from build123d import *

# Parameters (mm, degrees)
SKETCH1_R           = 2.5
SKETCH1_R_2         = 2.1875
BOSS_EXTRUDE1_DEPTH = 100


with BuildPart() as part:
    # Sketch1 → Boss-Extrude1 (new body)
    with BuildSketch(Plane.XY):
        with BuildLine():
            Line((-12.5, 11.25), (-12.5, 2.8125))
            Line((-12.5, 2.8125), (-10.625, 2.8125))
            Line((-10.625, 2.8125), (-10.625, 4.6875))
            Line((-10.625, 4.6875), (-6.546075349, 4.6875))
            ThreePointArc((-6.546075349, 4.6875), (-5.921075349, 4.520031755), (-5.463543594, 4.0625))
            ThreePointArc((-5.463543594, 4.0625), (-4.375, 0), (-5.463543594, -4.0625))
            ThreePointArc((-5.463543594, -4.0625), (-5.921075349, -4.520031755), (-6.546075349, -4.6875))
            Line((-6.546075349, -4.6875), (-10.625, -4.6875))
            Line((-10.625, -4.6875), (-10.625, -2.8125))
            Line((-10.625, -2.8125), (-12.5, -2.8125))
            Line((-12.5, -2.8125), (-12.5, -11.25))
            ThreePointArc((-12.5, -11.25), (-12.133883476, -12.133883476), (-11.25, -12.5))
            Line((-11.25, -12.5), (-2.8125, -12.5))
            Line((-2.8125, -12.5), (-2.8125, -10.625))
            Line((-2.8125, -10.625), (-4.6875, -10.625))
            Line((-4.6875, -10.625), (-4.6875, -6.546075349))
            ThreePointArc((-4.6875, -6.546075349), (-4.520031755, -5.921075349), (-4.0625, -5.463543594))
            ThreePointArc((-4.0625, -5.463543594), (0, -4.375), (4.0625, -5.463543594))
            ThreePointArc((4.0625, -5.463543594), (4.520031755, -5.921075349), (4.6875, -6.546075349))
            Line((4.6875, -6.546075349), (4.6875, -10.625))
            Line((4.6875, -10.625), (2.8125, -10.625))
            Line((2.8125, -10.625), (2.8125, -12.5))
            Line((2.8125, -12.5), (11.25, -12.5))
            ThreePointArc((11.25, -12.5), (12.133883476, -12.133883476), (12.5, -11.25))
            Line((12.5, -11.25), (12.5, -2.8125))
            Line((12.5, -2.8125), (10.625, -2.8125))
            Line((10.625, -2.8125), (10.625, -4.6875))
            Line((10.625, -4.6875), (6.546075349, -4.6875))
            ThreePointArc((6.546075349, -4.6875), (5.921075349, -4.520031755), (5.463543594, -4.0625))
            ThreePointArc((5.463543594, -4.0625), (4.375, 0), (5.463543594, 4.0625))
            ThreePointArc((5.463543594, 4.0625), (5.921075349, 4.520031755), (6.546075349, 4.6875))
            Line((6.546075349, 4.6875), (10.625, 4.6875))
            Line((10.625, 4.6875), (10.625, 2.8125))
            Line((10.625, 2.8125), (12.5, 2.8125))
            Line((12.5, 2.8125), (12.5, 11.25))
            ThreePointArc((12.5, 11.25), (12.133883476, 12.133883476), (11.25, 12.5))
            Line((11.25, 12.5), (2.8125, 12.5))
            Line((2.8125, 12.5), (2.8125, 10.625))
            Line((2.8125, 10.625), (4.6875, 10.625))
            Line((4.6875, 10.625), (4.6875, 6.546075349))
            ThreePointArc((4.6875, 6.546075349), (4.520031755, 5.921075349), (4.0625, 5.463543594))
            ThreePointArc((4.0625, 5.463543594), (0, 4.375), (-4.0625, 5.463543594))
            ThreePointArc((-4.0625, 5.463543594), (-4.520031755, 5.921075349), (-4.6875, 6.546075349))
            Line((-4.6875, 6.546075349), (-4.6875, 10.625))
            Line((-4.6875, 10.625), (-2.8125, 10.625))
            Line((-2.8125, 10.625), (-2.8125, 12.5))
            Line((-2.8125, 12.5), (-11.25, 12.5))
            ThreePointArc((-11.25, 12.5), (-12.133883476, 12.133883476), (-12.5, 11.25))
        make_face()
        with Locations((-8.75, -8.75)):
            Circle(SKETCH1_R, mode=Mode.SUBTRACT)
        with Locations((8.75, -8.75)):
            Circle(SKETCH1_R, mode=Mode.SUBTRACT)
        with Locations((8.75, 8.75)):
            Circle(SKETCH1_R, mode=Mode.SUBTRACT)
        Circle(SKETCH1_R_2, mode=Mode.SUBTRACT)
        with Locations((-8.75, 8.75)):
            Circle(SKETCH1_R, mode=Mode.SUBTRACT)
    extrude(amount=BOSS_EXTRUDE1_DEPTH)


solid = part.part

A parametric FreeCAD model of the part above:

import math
import FreeCAD as App
import Part
import Sketcher

doc = App.newDocument("Part")
body = doc.addObject("PartDesign::Body", "Body")

sketch1 = body.newObject("Sketcher::SketchObject", "Sketch")
sketch1.AttachmentSupport = (doc.getObject("XY_Plane"), [""])
sketch1.MapMode = "FlatFace"
sketch1.addGeometry([
    Part.LineSegment(App.Vector(-12.5, 11.2, 0), App.Vector(-12.5, 2.8, 0)),
    Part.LineSegment(App.Vector(-12.5, 2.8, 0), App.Vector(-10.6, 2.8, 0)),
    Part.LineSegment(App.Vector(-10.6, 2.8, 0), App.Vector(-10.6, 4.7, 0)),
    Part.LineSegment(App.Vector(-10.6, 4.7, 0), App.Vector(-6.5, 4.7, 0)),
    Part.ArcOfCircle(Part.Circle(App.Vector(-6.5, 3.4, 0), App.Vector(0, 0, 1), 1.2), math.radians(30), math.radians(90)),
    Part.ArcOfCircle(Part.Circle(App.Vector(-12.5, 0, 0), App.Vector(0, 0, 1), 8.1), math.radians(-30), math.radians(30)),
    Part.ArcOfCircle(Part.Circle(App.Vector(-6.5, -3.4, 0), App.Vector(0, 0, 1), 1.2), math.radians(-90), math.radians(-30)),
    Part.LineSegment(App.Vector(-6.5, -4.7, 0), App.Vector(-10.6, -4.7, 0)),
    Part.LineSegment(App.Vector(-10.6, -4.7, 0), App.Vector(-10.6, -2.8, 0)),
    Part.LineSegment(App.Vector(-10.6, -2.8, 0), App.Vector(-12.5, -2.8, 0)),
    Part.LineSegment(App.Vector(-12.5, -2.8, 0), App.Vector(-12.5, -11.2, 0)),
    Part.ArcOfCircle(Part.Circle(App.Vector(-11.2, -11.2, 0), App.Vector(0, 0, 1), 1.3), math.radians(-180), math.radians(-90)),
    Part.LineSegment(App.Vector(-11.2, -12.5, 0), App.Vector(-2.8, -12.5, 0)),
    Part.LineSegment(App.Vector(-2.8, -12.5, 0), App.Vector(-2.8, -10.6, 0)),
    Part.LineSegment(App.Vector(-2.8, -10.6, 0), App.Vector(-4.7, -10.6, 0)),
    Part.LineSegment(App.Vector(-4.7, -10.6, 0), App.Vector(-4.7, -6.5, 0)),
    Part.ArcOfCircle(Part.Circle(App.Vector(-3.4, -6.5, 0), App.Vector(0, 0, 1), 1.2), math.radians(120), math.radians(180)),
    Part.ArcOfCircle(Part.Circle(App.Vector(0, -12.5, 0), App.Vector(0, 0, 1), 8.1), math.radians(60), math.radians(120)),
    Part.ArcOfCircle(Part.Circle(App.Vector(3.4, -6.5, 0), App.Vector(0, 0, 1), 1.2), math.radians(0), math.radians(60)),
    Part.LineSegment(App.Vector(4.7, -6.5, 0), App.Vector(4.7, -10.6, 0)),
    Part.LineSegment(App.Vector(4.7, -10.6, 0), App.Vector(2.8, -10.6, 0)),
    Part.LineSegment(App.Vector(2.8, -10.6, 0), App.Vector(2.8, -12.5, 0)),
    Part.LineSegment(App.Vector(2.8, -12.5, 0), App.Vector(11.2, -12.5, 0)),
    Part.ArcOfCircle(Part.Circle(App.Vector(11.2, -11.2, 0), App.Vector(0, 0, 1), 1.3), math.radians(-90), math.radians(0)),
    Part.LineSegment(App.Vector(12.5, -11.2, 0), App.Vector(12.5, -2.8, 0)),
    Part.LineSegment(App.Vector(12.5, -2.8, 0), App.Vector(10.6, -2.8, 0)),
    Part.LineSegment(App.Vector(10.6, -2.8, 0), App.Vector(10.6, -4.7, 0)),
    Part.LineSegment(App.Vector(10.6, -4.7, 0), App.Vector(6.5, -4.7, 0)),
    Part.ArcOfCircle(Part.Circle(App.Vector(6.5, -3.4, 0), App.Vector(0, 0, 1), 1.2), math.radians(-150), math.radians(-90)),
    Part.ArcOfCircle(Part.Circle(App.Vector(12.5, 0, 0), App.Vector(0, 0, 1), 8.1), math.radians(150), math.radians(210)),
    Part.ArcOfCircle(Part.Circle(App.Vector(6.5, 3.4, 0), App.Vector(0, 0, 1), 1.2), math.radians(90), math.radians(150)),
    Part.LineSegment(App.Vector(6.5, 4.7, 0), App.Vector(10.6, 4.7, 0)),
    Part.LineSegment(App.Vector(10.6, 4.7, 0), App.Vector(10.6, 2.8, 0)),
    Part.LineSegment(App.Vector(10.6, 2.8, 0), App.Vector(12.5, 2.8, 0)),
    Part.LineSegment(App.Vector(12.5, 2.8, 0), App.Vector(12.5, 11.2, 0)),
    Part.ArcOfCircle(Part.Circle(App.Vector(11.2, 11.2, 0), App.Vector(0, 0, 1), 1.3), math.radians(0), math.radians(90)),
    Part.LineSegment(App.Vector(11.2, 12.5, 0), App.Vector(2.8, 12.5, 0)),
    Part.LineSegment(App.Vector(2.8, 12.5, 0), App.Vector(2.8, 10.6, 0)),
    Part.LineSegment(App.Vector(2.8, 10.6, 0), App.Vector(4.7, 10.6, 0)),
    Part.LineSegment(App.Vector(4.7, 10.6, 0), App.Vector(4.7, 6.5, 0)),
    Part.ArcOfCircle(Part.Circle(App.Vector(3.4, 6.5, 0), App.Vector(0, 0, 1), 1.2), math.radians(-60), math.radians(0)),
    Part.ArcOfCircle(Part.Circle(App.Vector(0, 12.5, 0), App.Vector(0, 0, 1), 8.1), math.radians(-120), math.radians(-60)),
    Part.ArcOfCircle(Part.Circle(App.Vector(-3.4, 6.5, 0), App.Vector(0, 0, 1), 1.2), math.radians(180), math.radians(240)),
    Part.LineSegment(App.Vector(-4.7, 6.5, 0), App.Vector(-4.7, 10.6, 0)),
    Part.LineSegment(App.Vector(-4.7, 10.6, 0), App.Vector(-2.8, 10.6, 0)),
    Part.LineSegment(App.Vector(-2.8, 10.6, 0), App.Vector(-2.8, 12.5, 0)),
    Part.LineSegment(App.Vector(-2.8, 12.5, 0), App.Vector(-11.2, 12.5, 0)),
    Part.ArcOfCircle(Part.Circle(App.Vector(-11.2, 11.2, 0), App.Vector(0, 0, 1), 1.3), math.radians(90), math.radians(180)),
    Part.Circle(App.Vector(-8.8, -8.8, 0), App.Vector(0, 0, 1), 2.5),
    Part.Circle(App.Vector(8.8, -8.8, 0), App.Vector(0, 0, 1), 2.5),
    Part.Circle(App.Vector(-8.8, 8.8, 0), App.Vector(0, 0, 1), 2.5),
    Part.Circle(App.Vector(0, 0, 0), App.Vector(0, 0, 1), 2.2),
    Part.Circle(App.Vector(8.8, 8.8, 0), App.Vector(0, 0, 1), 2.5),
], False)
sketch1.addConstraint([
    Sketcher.Constraint("Coincident", 0, 2, 1, 1),
    Sketcher.Constraint("Coincident", 1, 2, 2, 1),
    Sketcher.Constraint("Coincident", 2, 2, 3, 1),
    Sketcher.Constraint("Tangent", 3, 2, 4, 2),
    Sketcher.Constraint("Tangent", 4, 1, 5, 2),
    Sketcher.Constraint("Tangent", 5, 1, 6, 2),
    Sketcher.Constraint("Tangent", 6, 1, 7, 1),
    Sketcher.Constraint("Coincident", 7, 2, 8, 1),
    Sketcher.Constraint("Coincident", 8, 2, 9, 1),
    Sketcher.Constraint("Coincident", 9, 2, 10, 1),
    Sketcher.Constraint("Tangent", 10, 2, 11, 1),
    Sketcher.Constraint("Tangent", 11, 2, 12, 1),
    Sketcher.Constraint("Coincident", 12, 2, 13, 1),
    Sketcher.Constraint("Coincident", 13, 2, 14, 1),
    Sketcher.Constraint("Coincident", 14, 2, 15, 1),
    Sketcher.Constraint("Tangent", 15, 2, 16, 2),
    Sketcher.Constraint("Tangent", 16, 1, 17, 2),
    Sketcher.Constraint("Tangent", 17, 1, 18, 2),
    Sketcher.Constraint("Tangent", 18, 1, 19, 1),
    Sketcher.Constraint("Coincident", 19, 2, 20, 1),
    Sketcher.Constraint("Coincident", 20, 2, 21, 1),
    Sketcher.Constraint("Coincident", 21, 2, 22, 1),
    Sketcher.Constraint("Tangent", 22, 2, 23, 1),
    Sketcher.Constraint("Tangent", 23, 2, 24, 1),
    Sketcher.Constraint("Coincident", 24, 2, 25, 1),
    Sketcher.Constraint("Coincident", 25, 2, 26, 1),
    Sketcher.Constraint("Coincident", 26, 2, 27, 1),
    Sketcher.Constraint("Tangent", 27, 2, 28, 2),
    Sketcher.Constraint("Tangent", 28, 1, 29, 2),
    Sketcher.Constraint("Tangent", 29, 1, 30, 2),
    Sketcher.Constraint("Tangent", 30, 1, 31, 1),
    Sketcher.Constraint("Coincident", 31, 2, 32, 1),
    Sketcher.Constraint("Coincident", 32, 2, 33, 1),
    Sketcher.Constraint("Coincident", 33, 2, 34, 1),
    Sketcher.Constraint("Tangent", 34, 2, 35, 1),
    Sketcher.Constraint("Tangent", 35, 2, 36, 1),
    Sketcher.Constraint("Coincident", 36, 2, 37, 1),
    Sketcher.Constraint("Coincident", 37, 2, 38, 1),
    Sketcher.Constraint("Coincident", 38, 2, 39, 1),
    Sketcher.Constraint("Tangent", 39, 2, 40, 2),
    Sketcher.Constraint("Tangent", 40, 1, 41, 2),
    Sketcher.Constraint("Tangent", 41, 1, 42, 2),
    Sketcher.Constraint("Tangent", 42, 1, 43, 1),
    Sketcher.Constraint("Coincident", 43, 2, 44, 1),
    Sketcher.Constraint("Coincident", 44, 2, 45, 1),
    Sketcher.Constraint("Coincident", 45, 2, 46, 1),
    Sketcher.Constraint("Tangent", 46, 2, 47, 1),
    Sketcher.Constraint("Tangent", 47, 2, 0, 1),
    Sketcher.Constraint("Vertical", 0),
    Sketcher.Constraint("Horizontal", 1),
    Sketcher.Constraint("Vertical", 2),
    Sketcher.Constraint("Horizontal", 3),
    Sketcher.Constraint("Horizontal", 7),
    Sketcher.Constraint("Vertical", 8),
    Sketcher.Constraint("Horizontal", 9),
    Sketcher.Constraint("Vertical", 10),
    Sketcher.Constraint("Horizontal", 12),
    Sketcher.Constraint("Vertical", 13),
    Sketcher.Constraint("Horizontal", 14),
    Sketcher.Constraint("Vertical", 15),
    Sketcher.Constraint("Vertical", 19),
    Sketcher.Constraint("Horizontal", 20),
    Sketcher.Constraint("Vertical", 21),
    Sketcher.Constraint("Horizontal", 22),
    Sketcher.Constraint("Vertical", 24),
    Sketcher.Constraint("Horizontal", 25),
    Sketcher.Constraint("Vertical", 26),
    Sketcher.Constraint("Horizontal", 27),
    Sketcher.Constraint("Horizontal", 31),
    Sketcher.Constraint("Vertical", 32),
    Sketcher.Constraint("Horizontal", 33),
    Sketcher.Constraint("Vertical", 34),
    Sketcher.Constraint("Horizontal", 36),
    Sketcher.Constraint("Vertical", 37),
    Sketcher.Constraint("Horizontal", 38),
    Sketcher.Constraint("Vertical", 39),
    Sketcher.Constraint("Vertical", 43),
    Sketcher.Constraint("Horizontal", 44),
    Sketcher.Constraint("Vertical", 45),
    Sketcher.Constraint("Horizontal", 46),
    Sketcher.Constraint("Coincident", 51, 3, -1, 1),
    Sketcher.Constraint("Equal", 4, 6),
    Sketcher.Constraint("Equal", 6, 11),
    Sketcher.Constraint("Equal", 11, 16),
    Sketcher.Constraint("Equal", 5, 17),
    Sketcher.Constraint("Equal", 16, 18),
    Sketcher.Constraint("Equal", 18, 23),
    Sketcher.Constraint("Equal", 23, 28),
    Sketcher.Constraint("Equal", 17, 29),
    Sketcher.Constraint("Equal", 28, 30),
    Sketcher.Constraint("Equal", 30, 35),
    Sketcher.Constraint("Equal", 35, 40),
    Sketcher.Constraint("Equal", 29, 41),
    Sketcher.Constraint("Equal", 40, 42),
    Sketcher.Constraint("Equal", 42, 47),
    Sketcher.Constraint("Equal", 48, 49),
    Sketcher.Constraint("Equal", 49, 50),
    Sketcher.Constraint("Equal", 50, 52),
    Sketcher.Constraint("Symmetric", 4, 3, 28, 3, -1, 1),
    Sketcher.Constraint("Symmetric", 6, 3, 30, 3, -1, 1),
    Sketcher.Constraint("Symmetric", 11, 3, 35, 3, -1, 1),
    Sketcher.Constraint("Symmetric", 16, 3, 40, 3, -1, 1),
    Sketcher.Constraint("Symmetric", 18, 3, 42, 3, -1, 1),
    Sketcher.Constraint("Symmetric", 23, 3, 47, 3, -1, 1),
    Sketcher.Constraint("Symmetric", 49, 3, 50, 3, -1, 1),
    Sketcher.Constraint("Symmetric", 48, 3, 52, 3, -1, 1),
    Sketcher.Constraint("Symmetric", 1, 2, 25, 2, -1, 1),
    Sketcher.Constraint("Symmetric", 8, 2, 32, 2, -1, 1),
    Sketcher.Constraint("Symmetric", 13, 2, 37, 2, -1, 1),
    Sketcher.Constraint("Symmetric", 20, 2, 44, 2, -1, 1),
    Sketcher.Constraint("Symmetric", 16, 3, 18, 3, -2),
    Sketcher.Constraint("Symmetric", 11, 3, 23, 3, -2),
    Sketcher.Constraint("Symmetric", 6, 3, 28, 3, -2),
    Sketcher.Constraint("Symmetric", 48, 3, 49, 3, -2),
    Sketcher.Constraint("Symmetric", 13, 2, 20, 2, -2),
    Sketcher.Constraint("Symmetric", 8, 2, 25, 2, -2),
    Sketcher.Constraint("Horizontal", 17, 3, 11, 2),
    Sketcher.Constraint("Vertical", 5, 3, 0, 2),
    Sketcher.Constraint("Equal", 9, 14),
    Sketcher.Constraint("Equal", 46, 0),
    Sketcher.Constraint("Equal", 44, 2),
    Sketcher.Constraint("Equal", 8, 13),
    Sketcher.Constraint("Equal", 31, 15),
    Sketcher.Constraint("Diameter", 48, 5.0),
    Sketcher.Constraint("Radius", 4, 1.25),
    Sketcher.Constraint("Diameter", 51, 4.375),
    Sketcher.Constraint("Radius", 5, 8.125),
    Sketcher.Constraint("DistanceX", 5, 3, -1, 1, 12.5),
    Sketcher.Constraint("DistanceX", 1, 1, 1, 2, 1.875),
    Sketcher.Constraint("DistanceX", 48, 3, -1, 1, 8.75),
    Sketcher.Constraint("DistanceY", 48, 3, -1, 1, 8.75),
    Sketcher.Constraint("DistanceX", 12, 1, 12, 2, 8.4375),
])
pad1 = body.newObject("PartDesign::Pad", "Pad")
pad1.Profile = sketch1
pad1.Length = 100

doc.recompute()
